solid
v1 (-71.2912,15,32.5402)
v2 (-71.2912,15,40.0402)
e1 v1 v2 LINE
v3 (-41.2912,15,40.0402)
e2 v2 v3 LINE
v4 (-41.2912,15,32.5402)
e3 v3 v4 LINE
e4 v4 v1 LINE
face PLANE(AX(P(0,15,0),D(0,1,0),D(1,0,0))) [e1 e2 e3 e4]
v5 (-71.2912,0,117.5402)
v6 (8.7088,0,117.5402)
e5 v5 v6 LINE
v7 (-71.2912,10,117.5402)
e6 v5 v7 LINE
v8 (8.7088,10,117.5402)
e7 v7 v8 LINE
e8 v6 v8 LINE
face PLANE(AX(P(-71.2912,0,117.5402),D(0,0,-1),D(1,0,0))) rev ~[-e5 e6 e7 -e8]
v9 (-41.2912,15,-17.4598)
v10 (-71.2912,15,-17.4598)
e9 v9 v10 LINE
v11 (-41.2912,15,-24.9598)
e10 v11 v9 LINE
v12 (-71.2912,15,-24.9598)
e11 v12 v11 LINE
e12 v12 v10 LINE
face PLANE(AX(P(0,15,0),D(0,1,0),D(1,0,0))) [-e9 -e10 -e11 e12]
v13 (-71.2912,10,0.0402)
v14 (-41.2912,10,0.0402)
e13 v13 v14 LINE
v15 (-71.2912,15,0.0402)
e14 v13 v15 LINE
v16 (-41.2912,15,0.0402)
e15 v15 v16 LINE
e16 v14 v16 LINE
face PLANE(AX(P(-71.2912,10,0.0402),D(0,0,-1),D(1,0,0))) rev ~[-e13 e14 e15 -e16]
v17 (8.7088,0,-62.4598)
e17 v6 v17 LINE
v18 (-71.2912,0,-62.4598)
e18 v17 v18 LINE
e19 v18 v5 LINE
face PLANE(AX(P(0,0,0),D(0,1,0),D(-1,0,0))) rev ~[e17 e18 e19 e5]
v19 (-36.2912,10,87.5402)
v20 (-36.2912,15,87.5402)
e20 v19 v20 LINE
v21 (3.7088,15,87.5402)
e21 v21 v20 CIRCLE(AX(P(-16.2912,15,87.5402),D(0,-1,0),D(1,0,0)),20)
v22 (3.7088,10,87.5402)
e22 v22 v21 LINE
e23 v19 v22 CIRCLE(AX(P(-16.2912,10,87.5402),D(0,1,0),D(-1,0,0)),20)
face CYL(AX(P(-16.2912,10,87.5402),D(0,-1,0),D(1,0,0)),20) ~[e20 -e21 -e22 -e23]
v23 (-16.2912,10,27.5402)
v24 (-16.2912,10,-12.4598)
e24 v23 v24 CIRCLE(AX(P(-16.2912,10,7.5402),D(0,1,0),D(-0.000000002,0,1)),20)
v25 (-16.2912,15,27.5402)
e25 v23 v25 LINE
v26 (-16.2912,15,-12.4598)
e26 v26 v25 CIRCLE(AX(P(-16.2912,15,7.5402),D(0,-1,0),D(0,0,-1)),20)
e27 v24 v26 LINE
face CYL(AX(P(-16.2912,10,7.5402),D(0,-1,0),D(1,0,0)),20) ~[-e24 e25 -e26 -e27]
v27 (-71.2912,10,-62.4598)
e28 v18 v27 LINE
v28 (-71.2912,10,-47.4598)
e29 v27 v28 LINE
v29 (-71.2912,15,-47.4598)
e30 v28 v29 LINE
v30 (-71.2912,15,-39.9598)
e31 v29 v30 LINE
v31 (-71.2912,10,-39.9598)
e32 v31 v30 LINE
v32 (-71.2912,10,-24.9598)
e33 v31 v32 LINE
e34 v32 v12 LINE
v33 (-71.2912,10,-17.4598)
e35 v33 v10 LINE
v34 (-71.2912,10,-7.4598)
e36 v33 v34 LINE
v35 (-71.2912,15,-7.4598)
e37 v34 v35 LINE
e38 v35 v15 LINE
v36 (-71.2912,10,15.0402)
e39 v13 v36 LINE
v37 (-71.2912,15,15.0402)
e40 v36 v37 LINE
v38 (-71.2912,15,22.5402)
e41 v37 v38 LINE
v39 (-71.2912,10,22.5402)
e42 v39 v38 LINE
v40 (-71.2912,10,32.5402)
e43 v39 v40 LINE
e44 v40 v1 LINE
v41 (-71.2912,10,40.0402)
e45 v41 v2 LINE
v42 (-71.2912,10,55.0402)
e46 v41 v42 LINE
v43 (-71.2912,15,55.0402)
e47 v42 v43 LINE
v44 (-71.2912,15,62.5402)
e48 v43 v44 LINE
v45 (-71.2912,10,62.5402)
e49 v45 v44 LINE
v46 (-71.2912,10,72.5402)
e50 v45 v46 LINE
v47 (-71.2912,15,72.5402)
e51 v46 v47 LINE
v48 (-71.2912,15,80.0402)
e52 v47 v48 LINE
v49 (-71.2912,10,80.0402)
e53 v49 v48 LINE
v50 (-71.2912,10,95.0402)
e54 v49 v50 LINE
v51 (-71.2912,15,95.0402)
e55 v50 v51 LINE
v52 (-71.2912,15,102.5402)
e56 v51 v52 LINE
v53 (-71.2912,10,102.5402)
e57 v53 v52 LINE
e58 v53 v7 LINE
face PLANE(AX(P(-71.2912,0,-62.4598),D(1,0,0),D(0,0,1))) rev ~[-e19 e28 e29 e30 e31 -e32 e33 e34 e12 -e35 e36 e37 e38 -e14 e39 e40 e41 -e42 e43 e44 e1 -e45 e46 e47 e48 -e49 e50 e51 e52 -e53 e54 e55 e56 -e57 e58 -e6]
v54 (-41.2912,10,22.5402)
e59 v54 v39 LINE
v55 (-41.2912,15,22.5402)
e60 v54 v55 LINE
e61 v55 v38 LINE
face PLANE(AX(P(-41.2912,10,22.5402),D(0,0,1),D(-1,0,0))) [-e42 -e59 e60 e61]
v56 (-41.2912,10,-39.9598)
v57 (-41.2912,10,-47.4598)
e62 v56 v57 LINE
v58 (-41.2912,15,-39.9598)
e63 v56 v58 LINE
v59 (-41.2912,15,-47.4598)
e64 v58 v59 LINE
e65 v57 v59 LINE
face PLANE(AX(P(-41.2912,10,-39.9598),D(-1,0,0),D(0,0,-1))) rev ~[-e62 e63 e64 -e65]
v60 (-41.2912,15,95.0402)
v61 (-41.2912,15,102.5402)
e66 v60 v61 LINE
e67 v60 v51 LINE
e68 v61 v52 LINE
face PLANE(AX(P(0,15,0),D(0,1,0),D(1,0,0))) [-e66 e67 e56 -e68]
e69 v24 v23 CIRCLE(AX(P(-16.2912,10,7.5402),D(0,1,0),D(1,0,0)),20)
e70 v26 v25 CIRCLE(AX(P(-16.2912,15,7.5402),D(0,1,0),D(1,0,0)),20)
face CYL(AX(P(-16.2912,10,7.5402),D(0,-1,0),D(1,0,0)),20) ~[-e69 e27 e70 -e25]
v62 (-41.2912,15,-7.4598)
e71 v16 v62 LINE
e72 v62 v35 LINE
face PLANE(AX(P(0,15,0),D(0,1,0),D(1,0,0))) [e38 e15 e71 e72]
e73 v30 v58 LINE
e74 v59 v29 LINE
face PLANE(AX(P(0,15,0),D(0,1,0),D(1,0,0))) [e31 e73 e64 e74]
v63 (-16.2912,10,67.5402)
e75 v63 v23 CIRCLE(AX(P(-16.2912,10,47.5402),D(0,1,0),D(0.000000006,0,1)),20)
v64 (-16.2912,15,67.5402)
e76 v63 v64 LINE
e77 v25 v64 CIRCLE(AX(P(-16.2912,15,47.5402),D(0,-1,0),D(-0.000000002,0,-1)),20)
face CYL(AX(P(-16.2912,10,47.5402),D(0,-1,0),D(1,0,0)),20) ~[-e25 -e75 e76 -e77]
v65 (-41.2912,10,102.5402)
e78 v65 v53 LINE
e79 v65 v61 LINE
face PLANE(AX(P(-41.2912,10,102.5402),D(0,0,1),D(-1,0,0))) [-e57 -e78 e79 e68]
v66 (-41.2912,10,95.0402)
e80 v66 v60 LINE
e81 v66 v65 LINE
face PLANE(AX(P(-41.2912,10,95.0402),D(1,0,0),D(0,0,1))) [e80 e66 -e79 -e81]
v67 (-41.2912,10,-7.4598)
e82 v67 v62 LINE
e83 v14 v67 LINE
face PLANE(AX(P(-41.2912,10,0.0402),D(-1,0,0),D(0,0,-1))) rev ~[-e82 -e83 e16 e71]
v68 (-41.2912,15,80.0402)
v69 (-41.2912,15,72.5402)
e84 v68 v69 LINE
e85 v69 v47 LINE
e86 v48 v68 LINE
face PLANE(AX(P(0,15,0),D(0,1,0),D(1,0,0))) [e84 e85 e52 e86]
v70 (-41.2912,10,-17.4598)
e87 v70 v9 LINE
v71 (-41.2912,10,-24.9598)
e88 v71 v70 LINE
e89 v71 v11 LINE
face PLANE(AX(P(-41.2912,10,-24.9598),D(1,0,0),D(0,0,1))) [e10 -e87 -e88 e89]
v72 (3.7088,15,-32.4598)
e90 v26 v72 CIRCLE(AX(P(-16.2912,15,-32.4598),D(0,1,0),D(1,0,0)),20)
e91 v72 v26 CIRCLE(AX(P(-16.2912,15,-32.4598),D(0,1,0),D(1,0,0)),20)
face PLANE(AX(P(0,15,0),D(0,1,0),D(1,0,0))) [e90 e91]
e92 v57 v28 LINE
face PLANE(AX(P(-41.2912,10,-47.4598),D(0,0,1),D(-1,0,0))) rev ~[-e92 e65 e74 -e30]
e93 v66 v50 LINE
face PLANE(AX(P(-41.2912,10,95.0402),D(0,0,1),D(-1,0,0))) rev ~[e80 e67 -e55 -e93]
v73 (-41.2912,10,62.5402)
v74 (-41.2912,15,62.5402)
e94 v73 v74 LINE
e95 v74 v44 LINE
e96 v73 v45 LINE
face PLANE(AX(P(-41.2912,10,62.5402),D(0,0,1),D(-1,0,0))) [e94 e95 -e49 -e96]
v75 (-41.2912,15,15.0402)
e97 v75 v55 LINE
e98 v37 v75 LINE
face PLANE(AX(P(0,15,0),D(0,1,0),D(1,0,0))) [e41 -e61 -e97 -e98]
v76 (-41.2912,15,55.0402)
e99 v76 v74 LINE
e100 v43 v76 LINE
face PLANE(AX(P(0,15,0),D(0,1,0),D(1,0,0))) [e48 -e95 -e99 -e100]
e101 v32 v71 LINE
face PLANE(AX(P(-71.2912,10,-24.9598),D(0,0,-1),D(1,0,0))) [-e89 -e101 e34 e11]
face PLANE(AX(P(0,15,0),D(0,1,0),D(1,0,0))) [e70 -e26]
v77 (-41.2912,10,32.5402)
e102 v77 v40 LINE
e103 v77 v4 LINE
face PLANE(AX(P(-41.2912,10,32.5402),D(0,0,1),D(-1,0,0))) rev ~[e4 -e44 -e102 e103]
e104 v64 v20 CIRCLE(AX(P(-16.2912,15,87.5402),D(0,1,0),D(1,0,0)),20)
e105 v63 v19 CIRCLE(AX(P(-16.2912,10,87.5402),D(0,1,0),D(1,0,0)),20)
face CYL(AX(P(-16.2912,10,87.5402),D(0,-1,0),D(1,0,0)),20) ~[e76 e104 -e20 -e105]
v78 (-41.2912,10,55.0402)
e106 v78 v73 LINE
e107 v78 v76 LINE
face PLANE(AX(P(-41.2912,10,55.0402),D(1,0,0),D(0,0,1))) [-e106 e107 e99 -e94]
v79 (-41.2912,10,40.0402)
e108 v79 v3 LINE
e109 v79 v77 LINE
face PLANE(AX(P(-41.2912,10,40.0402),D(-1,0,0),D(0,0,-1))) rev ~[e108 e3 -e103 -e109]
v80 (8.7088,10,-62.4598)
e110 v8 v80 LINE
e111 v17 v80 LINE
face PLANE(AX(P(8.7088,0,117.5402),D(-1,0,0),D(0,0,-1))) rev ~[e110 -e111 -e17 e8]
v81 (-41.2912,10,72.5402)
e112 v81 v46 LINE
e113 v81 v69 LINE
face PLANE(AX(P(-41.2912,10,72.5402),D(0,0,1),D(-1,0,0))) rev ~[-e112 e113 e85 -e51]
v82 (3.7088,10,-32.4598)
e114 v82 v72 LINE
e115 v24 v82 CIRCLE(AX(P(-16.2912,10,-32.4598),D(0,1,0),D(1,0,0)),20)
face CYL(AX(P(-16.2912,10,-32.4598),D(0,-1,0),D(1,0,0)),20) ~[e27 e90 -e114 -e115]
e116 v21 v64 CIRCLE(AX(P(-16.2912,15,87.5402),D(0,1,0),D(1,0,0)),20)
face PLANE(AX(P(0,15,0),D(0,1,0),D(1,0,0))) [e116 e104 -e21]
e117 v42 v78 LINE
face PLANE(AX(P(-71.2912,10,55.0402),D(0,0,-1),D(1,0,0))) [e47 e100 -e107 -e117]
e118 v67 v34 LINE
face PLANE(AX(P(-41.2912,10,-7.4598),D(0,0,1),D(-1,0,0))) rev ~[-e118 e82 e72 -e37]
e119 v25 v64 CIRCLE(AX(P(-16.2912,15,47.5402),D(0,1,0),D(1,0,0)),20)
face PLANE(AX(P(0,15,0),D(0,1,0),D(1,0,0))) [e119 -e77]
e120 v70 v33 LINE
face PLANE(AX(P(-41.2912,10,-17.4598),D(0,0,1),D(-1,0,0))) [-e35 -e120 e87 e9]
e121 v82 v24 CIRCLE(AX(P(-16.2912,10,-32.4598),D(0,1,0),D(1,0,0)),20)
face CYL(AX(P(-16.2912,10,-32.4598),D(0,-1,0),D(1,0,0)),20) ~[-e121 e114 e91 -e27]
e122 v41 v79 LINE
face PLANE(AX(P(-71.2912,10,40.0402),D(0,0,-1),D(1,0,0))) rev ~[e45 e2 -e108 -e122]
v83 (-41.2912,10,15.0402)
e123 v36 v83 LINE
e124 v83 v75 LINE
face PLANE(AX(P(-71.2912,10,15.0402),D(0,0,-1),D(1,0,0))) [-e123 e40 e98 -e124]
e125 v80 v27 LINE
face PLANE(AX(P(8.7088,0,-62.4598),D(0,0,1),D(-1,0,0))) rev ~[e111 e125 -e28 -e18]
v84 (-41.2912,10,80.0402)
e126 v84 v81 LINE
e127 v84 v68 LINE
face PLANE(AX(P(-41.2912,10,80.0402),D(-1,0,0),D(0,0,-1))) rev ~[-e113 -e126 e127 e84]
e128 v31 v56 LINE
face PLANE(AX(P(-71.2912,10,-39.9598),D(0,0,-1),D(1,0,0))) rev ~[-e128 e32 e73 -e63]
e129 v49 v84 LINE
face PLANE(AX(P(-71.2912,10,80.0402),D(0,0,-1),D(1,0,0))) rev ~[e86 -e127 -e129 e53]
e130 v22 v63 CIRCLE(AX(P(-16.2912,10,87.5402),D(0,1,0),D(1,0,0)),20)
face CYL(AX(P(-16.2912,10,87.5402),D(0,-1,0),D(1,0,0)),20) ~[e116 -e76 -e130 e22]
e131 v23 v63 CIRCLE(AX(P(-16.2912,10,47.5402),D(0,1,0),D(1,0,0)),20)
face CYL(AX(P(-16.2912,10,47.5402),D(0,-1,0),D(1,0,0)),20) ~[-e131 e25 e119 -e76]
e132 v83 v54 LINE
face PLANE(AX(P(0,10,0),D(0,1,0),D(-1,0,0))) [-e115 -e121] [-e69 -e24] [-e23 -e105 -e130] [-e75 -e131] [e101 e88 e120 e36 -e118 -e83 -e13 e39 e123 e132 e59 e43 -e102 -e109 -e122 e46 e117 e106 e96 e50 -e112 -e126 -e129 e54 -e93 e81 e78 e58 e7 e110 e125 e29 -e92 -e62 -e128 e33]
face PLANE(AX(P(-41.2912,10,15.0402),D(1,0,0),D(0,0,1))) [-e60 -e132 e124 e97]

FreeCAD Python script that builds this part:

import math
import FreeCAD as App
import Part
import Sketcher
from FreeCAD import Vector

doc = App.newDocument("Part")
body = doc.addObject("PartDesign::Body", "Body")

# Sketch on XZ plane
sketch1 = doc.addObject("Sketcher::SketchObject", "Sketch")
body.addObject(sketch1)
sketch1.AttachmentSupport = (doc.XZ_Plane, [""])
sketch1.MapMode = "FlatFace"
sketch1.addGeometry(Part.LineSegment(Vector(-71.2912, -62.4598, 0), Vector(-71.2912, 117.5402, 0)), False)
sketch1.addGeometry(Part.LineSegment(Vector(-71.2912, 117.5402, 0), Vector(8.7088, 117.5402, 0)), False)
sketch1.addGeometry(Part.LineSegment(Vector(8.7088, 117.5402, 0), Vector(8.7088, -62.4598, 0)), False)
sketch1.addGeometry(Part.LineSegment(Vector(8.7088, -62.4598, 0), Vector(-71.2912, -62.4598, 0)), False)
sketch1.addConstraint(Sketcher.Constraint("Coincident", 0, 2, 1, 1))
sketch1.addConstraint(Sketcher.Constraint("Coincident", 1, 2, 2, 1))
sketch1.addConstraint(Sketcher.Constraint("Coincident", 2, 2, 3, 1))
sketch1.addConstraint(Sketcher.Constraint("Coincident", 3, 2, 0, 1))
sketch1.addConstraint(Sketcher.Constraint("Vertical", 0))
sketch1.addConstraint(Sketcher.Constraint("Horizontal", 1))
sketch1.addConstraint(Sketcher.Constraint("Vertical", 2))
sketch1.addConstraint(Sketcher.Constraint("Horizontal", 3))
sketch1.addConstraint(Sketcher.Constraint("DistanceX", 1, 1, 1, 2, 80.0))
sketch1.addConstraint(Sketcher.Constraint("DistanceY", 0, 1, 0, 2, 180.0))
sketch1.addConstraint(Sketcher.Constraint("DistanceX", 0, 2, -1, 1, 71.2912))
sketch1.addConstraint(Sketcher.Constraint("DistanceY", -1, 1, 0, 2, 117.5402))
pad1 = doc.addObject("PartDesign::Pad", "Pad")
body.addObject(pad1)
pad1.Profile = sketch1
pad1.Length = 10
pad1.Reversed = True

# Sketch on XZ plane
sketch2 = doc.addObject("Sketcher::SketchObject", "Sketch001")
body.addObject(sketch2)
sketch2.AttachmentSupport = (doc.XZ_Plane, [""])
sketch2.MapMode = "FlatFace"
sketch2.AttachmentOffset = App.Placement(Vector(0, 0, -10), App.Rotation())
sketch2.addGeometry(Part.Circle(Vector(-16.2912, -32.4598, 0), Vector(0, 0, 1), 20), False)
sketch2.addGeometry(Part.ArcOfCircle(Part.Circle(Vector(-16.2912, 7.5402, 0), Vector(0, 0, 1), 20), math.radians(90), math.radians(270)), False)
sketch2.addGeometry(Part.ArcOfCircle(Part.Circle(Vector(-16.2912, 7.5402, 0), Vector(0, 0, 1), 20), math.radians(-90), math.radians(90)), False)
sketch2.addGeometry(Part.ArcOfCircle(Part.Circle(Vector(-16.2912, 47.5402, 0), Vector(0, 0, 1), 20), math.radians(90), math.radians(270)), False)
sketch2.addGeometry(Part.ArcOfCircle(Part.Circle(Vector(-16.2912, 47.5402, 0), Vector(0, 0, 1), 20), math.radians(-90), math.radians(90)), False)
sketch2.addGeometry(Part.Circle(Vector(-16.2912, 87.5402, 0), Vector(0, 0, 1), 20), False)
sketch2.addGeometry(Part.LineSegment(Vector(-41.2912, -47.4598, 0), Vector(-71.2912, -47.4598, 0)), False)
sketch2.addGeometry(Part.LineSegment(Vector(-71.2912, -47.4598, 0), Vector(-71.2912, -39.9598, 0)), False)
sketch2.addGeometry(Part.LineSegment(Vector(-71.2912, -39.9598, 0), Vector(-41.2912, -39.9598, 0)), False)
sketch2.addGeometry(Part.LineSegment(Vector(-41.2912, -39.9598, 0), Vector(-41.2912, -47.4598, 0)), False)
sketch2.addGeometry(Part.LineSegment(Vector(-71.2912, 80.0402, 0), Vector(-41.2912, 80.0402, 0)), False)
sketch2.addGeometry(Part.LineSegment(Vector(-41.2912, 80.0402, 0), Vector(-41.2912, 72.5402, 0)), False)
sketch2.addGeometry(Part.LineSegment(Vector(-41.2912, 72.5402, 0), Vector(-71.2912, 72.5402, 0)), False)
sketch2.addGeometry(Part.LineSegment(Vector(-71.2912, 72.5402, 0), Vector(-71.2912, 80.0402, 0)), False)
sketch2.addGeometry(Part.LineSegment(Vector(-41.2912, 102.5402, 0), Vector(-41.2912, 95.0402, 0)), False)
sketch2.addGeometry(Part.LineSegment(Vector(-41.2912, 95.0402, 0), Vector(-71.2912, 95.0402, 0)), False)
sketch2.addGeometry(Part.LineSegment(Vector(-71.2912, 95.0402, 0), Vector(-71.2912, 102.5402, 0)), False)
sketch2.addGeometry(Part.LineSegment(Vector(-71.2912, 102.5402, 0), Vector(-41.2912, 102.5402, 0)), False)
sketch2.addGeometry(Part.LineSegment(Vector(-41.2912, -24.9598, 0), Vector(-71.2912, -24.9598, 0)), False)
sketch2.addGeometry(Part.LineSegment(Vector(-71.2912, -24.9598, 0), Vector(-71.2912, -17.4598, 0)), False)
sketch2.addGeometry(Part.LineSegment(Vector(-71.2912, -17.4598, 0), Vector(-41.2912, -17.4598, 0)), False)
sketch2.addGeometry(Part.LineSegment(Vector(-41.2912, -17.4598, 0), Vector(-41.2912, -24.9598, 0)), False)
sketch2.addGeometry(Part.LineSegment(Vector(-41.2912, -7.4598, 0), Vector(-71.2912, -7.4598, 0)), False)
sketch2.addGeometry(Part.LineSegment(Vector(-71.2912, -7.4598, 0), Vector(-71.2912, 0.0402, 0)), False)
sketch2.addGeometry(Part.LineSegment(Vector(-71.2912, 0.0402, 0), Vector(-41.2912, 0.0402, 0)), False)
sketch2.addGeometry(Part.LineSegment(Vector(-41.2912, 0.0402, 0), Vector(-41.2912, -7.4598, 0)), False)
sketch2.addGeometry(Part.LineSegment(Vector(-71.2912, 55.0402, 0), Vector(-71.2912, 62.5402, 0)), False)
sketch2.addGeometry(Part.LineSegment(Vector(-71.2912, 62.5402, 0), Vector(-41.2912, 62.5402, 0)), False)
sketch2.addGeometry(Part.LineSegment(Vector(-41.2912, 62.5402, 0), Vector(-41.2912, 55.0402, 0)), False)
sketch2.addGeometry(Part.LineSegment(Vector(-41.2912, 55.0402, 0), Vector(-71.2912, 55.0402, 0)), False)
sketch2.addGeometry(Part.LineSegment(Vector(-41.2912, 15.0402, 0), Vector(-71.2912, 15.0402, 0)), False)
sketch2.addGeometry(Part.LineSegment(Vector(-71.2912, 15.0402, 0), Vector(-71.2912, 22.5402, 0)), False)
sketch2.addGeometry(Part.LineSegment(Vector(-71.2912, 22.5402, 0), Vector(-41.2912, 22.5402, 0)), False)
sketch2.addGeometry(Part.LineSegment(Vector(-41.2912, 22.5402, 0), Vector(-41.2912, 15.0402, 0)), False)
sketch2.addGeometry(Part.LineSegment(Vector(-71.2912, 32.5402, 0), Vector(-71.2912, 40.0402, 0)), False)
sketch2.addGeometry(Part.LineSegment(Vector(-71.2912, 40.0402, 0), Vector(-41.2912, 40.0402, 0)), False)
sketch2.addGeometry(Part.LineSegment(Vector(-41.2912, 40.0402, 0), Vector(-41.2912, 32.5402, 0)), False)
sketch2.addGeometry(Part.LineSegment(Vector(-41.2912, 32.5402, 0), Vector(-71.2912, 32.5402, 0)), False)
sketch2.addConstraint(Sketcher.Constraint("Tangent", 1, 1, 2, 2))
sketch2.addConstraint(Sketcher.Constraint("Coincident", 2, 1, 1, 2))
sketch2.addConstraint(Sketcher.Constraint("Tangent", 3, 1, 4, 2))
sketch2.addConstraint(Sketcher.Constraint("Coincident", 4, 1, 3, 2))
sketch2.addConstraint(Sketcher.Constraint("Coincident", 6, 2, 7, 1))
sketch2.addConstraint(Sketcher.Constraint("Coincident", 7, 2, 8, 1))
sketch2.addConstraint(Sketcher.Constraint("Coincident", 8, 2, 9, 1))
sketch2.addConstraint(Sketcher.Constraint("Coincident", 9, 2, 6, 1))
sketch2.addConstraint(Sketcher.Constraint("Coincident", 10, 2, 11, 1))
sketch2.addConstraint(Sketcher.Constraint("Coincident", 11, 2, 12, 1))
sketch2.addConstraint(Sketcher.Constraint("Coincident", 12, 2, 13, 1))
sketch2.addConstraint(Sketcher.Constraint("Coincident", 13, 2, 10, 1))
sketch2.addConstraint(Sketcher.Constraint("Coincident", 14, 2, 15, 1))
sketch2.addConstraint(Sketcher.Constraint("Coincident", 15, 2, 16, 1))
sketch2.addConstraint(Sketcher.Constraint("Coincident", 16, 2, 17, 1))
sketch2.addConstraint(Sketcher.Constraint("Coincident", 17, 2, 14, 1))
sketch2.addConstraint(Sketcher.Constraint("Coincident", 18, 2, 19, 1))
sketch2.addConstraint(Sketcher.Constraint("Coincident", 19, 2, 20, 1))
sketch2.addConstraint(Sketcher.Constraint("Coincident", 20, 2, 21, 1))
sketch2.addConstraint(Sketcher.Constraint("Coincident", 21, 2, 18, 1))
sketch2.addConstraint(Sketcher.Constraint("Coincident", 22, 2, 23, 1))
sketch2.addConstraint(Sketcher.Constraint("Coincident", 23, 2, 24, 1))
sketch2.addConstraint(Sketcher.Constraint("Coincident", 24, 2, 25, 1))
sketch2.addConstraint(Sketcher.Constraint("Coincident", 25, 2, 22, 1))
sketch2.addConstraint(Sketcher.Constraint("Coincident", 26, 2, 27, 1))
sketch2.addConstraint(Sketcher.Constraint("Coincident", 27, 2, 28, 1))
sketch2.addConstraint(Sketcher.Constraint("Coincident", 28, 2, 29, 1))
sketch2.addConstraint(Sketcher.Constraint("Coincident", 29, 2, 26, 1))
sketch2.addConstraint(Sketcher.Constraint("Coincident", 30, 2, 31, 1))
sketch2.addConstraint(Sketcher.Constraint("Coincident", 31, 2, 32, 1))
sketch2.addConstraint(Sketcher.Constraint("Coincident", 32, 2, 33, 1))
sketch2.addConstraint(Sketcher.Constraint("Coincident", 33, 2, 30, 1))
sketch2.addConstraint(Sketcher.Constraint("Coincident", 34, 2, 35, 1))
sketch2.addConstraint(Sketcher.Constraint("Coincident", 35, 2, 36, 1))
sketch2.addConstraint(Sketcher.Constraint("Coincident", 36, 2, 37, 1))
sketch2.addConstraint(Sketcher.Constraint("Coincident", 37, 2, 34, 1))
sketch2.addConstraint(Sketcher.Constraint("Horizontal", 6))
sketch2.addConstraint(Sketcher.Constraint("Vertical", 7))
sketch2.addConstraint(Sketcher.Constraint("Horizontal", 8))
sketch2.addConstraint(Sketcher.Constraint("Vertical", 9))
sketch2.addConstraint(Sketcher.Constraint("Horizontal", 10))
sketch2.addConstraint(Sketcher.Constraint("Vertical", 11))
sketch2.addConstraint(Sketcher.Constraint("Horizontal", 12))
sketch2.addConstraint(Sketcher.Constraint("Vertical", 13))
sketch2.addConstraint(Sketcher.Constraint("Vertical", 14))
sketch2.addConstraint(Sketcher.Constraint("Horizontal", 15))
sketch2.addConstraint(Sketcher.Constraint("Vertical", 16))
sketch2.addConstraint(Sketcher.Constraint("Horizontal", 17))
sketch2.addConstraint(Sketcher.Constraint("Horizontal", 18))
sketch2.addConstraint(Sketcher.Constraint("Vertical", 19))
sketch2.addConstraint(Sketcher.Constraint("Horizontal", 20))
sketch2.addConstraint(Sketcher.Constraint("Vertical", 21))
sketch2.addConstraint(Sketcher.Constraint("Horizontal", 22))
sketch2.addConstraint(Sketcher.Constraint("Vertical", 23))
sketch2.addConstraint(Sketcher.Constraint("Horizontal", 24))
sketch2.addConstraint(Sketcher.Constraint("Vertical", 25))
sketch2.addConstraint(Sketcher.Constraint("Vertical", 26))
sketch2.addConstraint(Sketcher.Constraint("Horizontal", 27))
sketch2.addConstraint(Sketcher.Constraint("Vertical", 28))
sketch2.addConstraint(Sketcher.Constraint("Horizontal", 29))
sketch2.addConstraint(Sketcher.Constraint("Horizontal", 30))
sketch2.addConstraint(Sketcher.Constraint("Vertical", 31))
sketch2.addConstraint(Sketcher.Constraint("Horizontal", 32))
sketch2.addConstraint(Sketcher.Constraint("Vertical", 33))
sketch2.addConstraint(Sketcher.Constraint("Vertical", 34))
sketch2.addConstraint(Sketcher.Constraint("Horizontal", 35))
sketch2.addConstraint(Sketcher.Constraint("Vertical", 36))
sketch2.addConstraint(Sketcher.Constraint("Horizontal", 37))
sketch2.addConstraint(Sketcher.Constraint("Coincident", 4, 1, 1, 1))
sketch2.addConstraint(Sketcher.Constraint("Equal", 0, 1))
sketch2.addConstraint(Sketcher.Constraint("Equal", 2, 3))
sketch2.addConstraint(Sketcher.Constraint("Equal", 4, 5))
sketch2.addConstraint(Sketcher.Constraint("Vertical", 0, 3, 1, 3))
sketch2.addConstraint(Sketcher.Constraint("Vertical", 2, 3, 3, 3))
sketch2.addConstraint(Sketcher.Constraint("Vertical", 4, 3, 5, 3))
sketch2.addConstraint(Sketcher.Constraint("Vertical", 5, 3, 1, 1))
sketch2.addConstraint(Sketcher.Constraint("Vertical", 1, 1, 2, 1))
sketch2.addConstraint(Sketcher.Constraint("Vertical", 2, 1, 3, 1))
sketch2.addConstraint(Sketcher.Constraint("Vertical", 9, 2, 10, 2))
sketch2.addConstraint(Sketcher.Constraint("Vertical", 7, 2, 12, 2))
sketch2.addConstraint(Sketcher.Constraint("Vertical", 11, 2, 14, 2))
sketch2.addConstraint(Sketcher.Constraint("Vertical", 13, 2, 15, 2))
sketch2.addConstraint(Sketcher.Constraint("Vertical", 16, 2, 18, 2))
sketch2.addConstraint(Sketcher.Constraint("Vertical", 17, 2, 20, 2))
sketch2.addConstraint(Sketcher.Constraint("Vertical", 19, 2, 22, 2))
sketch2.addConstraint(Sketcher.Constraint("Vertical", 21, 2, 24, 2))
sketch2.addConstraint(Sketcher.Constraint("Vertical", 23, 2, 26, 2))
sketch2.addConstraint(Sketcher.Constraint("Vertical", 25, 2, 27, 2))
sketch2.addConstraint(Sketcher.Constraint("Vertical", 29, 2, 30, 2))
sketch2.addConstraint(Sketcher.Constraint("Vertical", 28, 2, 32, 2))
sketch2.addConstraint(Sketcher.Constraint("Vertical", 31, 2, 34, 2))
sketch2.addConstraint(Sketcher.Constraint("Vertical", 33, 2, 35, 2))
sketch2.addConstraint(Sketcher.Constraint("Equal", 9, 11))
sketch2.addConstraint(Sketcher.Constraint("Equal", 13, 14))
sketch2.addConstraint(Sketcher.Constraint("Equal", 16, 19))
sketch2.addConstraint(Sketcher.Constraint("Equal", 21, 23))
sketch2.addConstraint(Sketcher.Constraint("Equal", 25, 26))
sketch2.addConstraint(Sketcher.Constraint("Equal", 28, 31))
sketch2.addConstraint(Sketcher.Constraint("Equal", 33, 34))
sketch2.addConstraint(Sketcher.Constraint("Diameter", 0, 40.0))
sketch2.addConstraint(Sketcher.Constraint("DistanceX", 6, 2, 6, 1, 30.0))
sketch2.addConstraint(Sketcher.Constraint("DistanceY", 7, 1, 7, 2, 7.5))
sketch2.addConstraint(Sketcher.Constraint("DistanceY", 0, 3, 1, 3, 40.0))
sketch2.addConstraint(Sketcher.Constraint("DistanceY", 3, 3, 5, 3, 40.0))
sketch2.addConstraint(Sketcher.Constraint("DistanceY", 6, 2, 0, 3, 15.0))
sketch2.addConstraint(Sketcher.Constraint("DistanceX", 8, 2, 0, 3, 25.0))
sketch2.addConstraint(Sketcher.Constraint("DistanceY", 11, 2, 5, 3, 15.0))
sketch2.addConstraint(Sketcher.Constraint("DistanceY", 10, 2, 14, 2, 15.0))
sketch2.addConstraint(Sketcher.Constraint("DistanceY", 7, 2, 18, 2, 15.0))
sketch2.addConstraint(Sketcher.Constraint("DistanceY", 18, 2, 23, 2, 25.0))
sketch2.addConstraint(Sketcher.Constraint("DistanceY", 3, 3, 27, 2, 15.0))
sketch2.addConstraint(Sketcher.Constraint("DistanceY", 23, 2, 30, 2, 15.0))
sketch2.addConstraint(Sketcher.Constraint("DistanceY", 34, 2, 29, 2, 15.0))
sketch2.addConstraint(Sketcher.Constraint("DistanceX", 0, 3, -1, 1, 16.2912))
sketch2.addConstraint(Sketcher.Constraint("DistanceY", 0, 3, -1, 1, 32.4598))
pad2 = doc.addObject("PartDesign::Pad", "Pad001")
body.addObject(pad2)
pad2.Profile = sketch2
pad2.Length = 5
pad2.Reversed = True

doc.recompute()
